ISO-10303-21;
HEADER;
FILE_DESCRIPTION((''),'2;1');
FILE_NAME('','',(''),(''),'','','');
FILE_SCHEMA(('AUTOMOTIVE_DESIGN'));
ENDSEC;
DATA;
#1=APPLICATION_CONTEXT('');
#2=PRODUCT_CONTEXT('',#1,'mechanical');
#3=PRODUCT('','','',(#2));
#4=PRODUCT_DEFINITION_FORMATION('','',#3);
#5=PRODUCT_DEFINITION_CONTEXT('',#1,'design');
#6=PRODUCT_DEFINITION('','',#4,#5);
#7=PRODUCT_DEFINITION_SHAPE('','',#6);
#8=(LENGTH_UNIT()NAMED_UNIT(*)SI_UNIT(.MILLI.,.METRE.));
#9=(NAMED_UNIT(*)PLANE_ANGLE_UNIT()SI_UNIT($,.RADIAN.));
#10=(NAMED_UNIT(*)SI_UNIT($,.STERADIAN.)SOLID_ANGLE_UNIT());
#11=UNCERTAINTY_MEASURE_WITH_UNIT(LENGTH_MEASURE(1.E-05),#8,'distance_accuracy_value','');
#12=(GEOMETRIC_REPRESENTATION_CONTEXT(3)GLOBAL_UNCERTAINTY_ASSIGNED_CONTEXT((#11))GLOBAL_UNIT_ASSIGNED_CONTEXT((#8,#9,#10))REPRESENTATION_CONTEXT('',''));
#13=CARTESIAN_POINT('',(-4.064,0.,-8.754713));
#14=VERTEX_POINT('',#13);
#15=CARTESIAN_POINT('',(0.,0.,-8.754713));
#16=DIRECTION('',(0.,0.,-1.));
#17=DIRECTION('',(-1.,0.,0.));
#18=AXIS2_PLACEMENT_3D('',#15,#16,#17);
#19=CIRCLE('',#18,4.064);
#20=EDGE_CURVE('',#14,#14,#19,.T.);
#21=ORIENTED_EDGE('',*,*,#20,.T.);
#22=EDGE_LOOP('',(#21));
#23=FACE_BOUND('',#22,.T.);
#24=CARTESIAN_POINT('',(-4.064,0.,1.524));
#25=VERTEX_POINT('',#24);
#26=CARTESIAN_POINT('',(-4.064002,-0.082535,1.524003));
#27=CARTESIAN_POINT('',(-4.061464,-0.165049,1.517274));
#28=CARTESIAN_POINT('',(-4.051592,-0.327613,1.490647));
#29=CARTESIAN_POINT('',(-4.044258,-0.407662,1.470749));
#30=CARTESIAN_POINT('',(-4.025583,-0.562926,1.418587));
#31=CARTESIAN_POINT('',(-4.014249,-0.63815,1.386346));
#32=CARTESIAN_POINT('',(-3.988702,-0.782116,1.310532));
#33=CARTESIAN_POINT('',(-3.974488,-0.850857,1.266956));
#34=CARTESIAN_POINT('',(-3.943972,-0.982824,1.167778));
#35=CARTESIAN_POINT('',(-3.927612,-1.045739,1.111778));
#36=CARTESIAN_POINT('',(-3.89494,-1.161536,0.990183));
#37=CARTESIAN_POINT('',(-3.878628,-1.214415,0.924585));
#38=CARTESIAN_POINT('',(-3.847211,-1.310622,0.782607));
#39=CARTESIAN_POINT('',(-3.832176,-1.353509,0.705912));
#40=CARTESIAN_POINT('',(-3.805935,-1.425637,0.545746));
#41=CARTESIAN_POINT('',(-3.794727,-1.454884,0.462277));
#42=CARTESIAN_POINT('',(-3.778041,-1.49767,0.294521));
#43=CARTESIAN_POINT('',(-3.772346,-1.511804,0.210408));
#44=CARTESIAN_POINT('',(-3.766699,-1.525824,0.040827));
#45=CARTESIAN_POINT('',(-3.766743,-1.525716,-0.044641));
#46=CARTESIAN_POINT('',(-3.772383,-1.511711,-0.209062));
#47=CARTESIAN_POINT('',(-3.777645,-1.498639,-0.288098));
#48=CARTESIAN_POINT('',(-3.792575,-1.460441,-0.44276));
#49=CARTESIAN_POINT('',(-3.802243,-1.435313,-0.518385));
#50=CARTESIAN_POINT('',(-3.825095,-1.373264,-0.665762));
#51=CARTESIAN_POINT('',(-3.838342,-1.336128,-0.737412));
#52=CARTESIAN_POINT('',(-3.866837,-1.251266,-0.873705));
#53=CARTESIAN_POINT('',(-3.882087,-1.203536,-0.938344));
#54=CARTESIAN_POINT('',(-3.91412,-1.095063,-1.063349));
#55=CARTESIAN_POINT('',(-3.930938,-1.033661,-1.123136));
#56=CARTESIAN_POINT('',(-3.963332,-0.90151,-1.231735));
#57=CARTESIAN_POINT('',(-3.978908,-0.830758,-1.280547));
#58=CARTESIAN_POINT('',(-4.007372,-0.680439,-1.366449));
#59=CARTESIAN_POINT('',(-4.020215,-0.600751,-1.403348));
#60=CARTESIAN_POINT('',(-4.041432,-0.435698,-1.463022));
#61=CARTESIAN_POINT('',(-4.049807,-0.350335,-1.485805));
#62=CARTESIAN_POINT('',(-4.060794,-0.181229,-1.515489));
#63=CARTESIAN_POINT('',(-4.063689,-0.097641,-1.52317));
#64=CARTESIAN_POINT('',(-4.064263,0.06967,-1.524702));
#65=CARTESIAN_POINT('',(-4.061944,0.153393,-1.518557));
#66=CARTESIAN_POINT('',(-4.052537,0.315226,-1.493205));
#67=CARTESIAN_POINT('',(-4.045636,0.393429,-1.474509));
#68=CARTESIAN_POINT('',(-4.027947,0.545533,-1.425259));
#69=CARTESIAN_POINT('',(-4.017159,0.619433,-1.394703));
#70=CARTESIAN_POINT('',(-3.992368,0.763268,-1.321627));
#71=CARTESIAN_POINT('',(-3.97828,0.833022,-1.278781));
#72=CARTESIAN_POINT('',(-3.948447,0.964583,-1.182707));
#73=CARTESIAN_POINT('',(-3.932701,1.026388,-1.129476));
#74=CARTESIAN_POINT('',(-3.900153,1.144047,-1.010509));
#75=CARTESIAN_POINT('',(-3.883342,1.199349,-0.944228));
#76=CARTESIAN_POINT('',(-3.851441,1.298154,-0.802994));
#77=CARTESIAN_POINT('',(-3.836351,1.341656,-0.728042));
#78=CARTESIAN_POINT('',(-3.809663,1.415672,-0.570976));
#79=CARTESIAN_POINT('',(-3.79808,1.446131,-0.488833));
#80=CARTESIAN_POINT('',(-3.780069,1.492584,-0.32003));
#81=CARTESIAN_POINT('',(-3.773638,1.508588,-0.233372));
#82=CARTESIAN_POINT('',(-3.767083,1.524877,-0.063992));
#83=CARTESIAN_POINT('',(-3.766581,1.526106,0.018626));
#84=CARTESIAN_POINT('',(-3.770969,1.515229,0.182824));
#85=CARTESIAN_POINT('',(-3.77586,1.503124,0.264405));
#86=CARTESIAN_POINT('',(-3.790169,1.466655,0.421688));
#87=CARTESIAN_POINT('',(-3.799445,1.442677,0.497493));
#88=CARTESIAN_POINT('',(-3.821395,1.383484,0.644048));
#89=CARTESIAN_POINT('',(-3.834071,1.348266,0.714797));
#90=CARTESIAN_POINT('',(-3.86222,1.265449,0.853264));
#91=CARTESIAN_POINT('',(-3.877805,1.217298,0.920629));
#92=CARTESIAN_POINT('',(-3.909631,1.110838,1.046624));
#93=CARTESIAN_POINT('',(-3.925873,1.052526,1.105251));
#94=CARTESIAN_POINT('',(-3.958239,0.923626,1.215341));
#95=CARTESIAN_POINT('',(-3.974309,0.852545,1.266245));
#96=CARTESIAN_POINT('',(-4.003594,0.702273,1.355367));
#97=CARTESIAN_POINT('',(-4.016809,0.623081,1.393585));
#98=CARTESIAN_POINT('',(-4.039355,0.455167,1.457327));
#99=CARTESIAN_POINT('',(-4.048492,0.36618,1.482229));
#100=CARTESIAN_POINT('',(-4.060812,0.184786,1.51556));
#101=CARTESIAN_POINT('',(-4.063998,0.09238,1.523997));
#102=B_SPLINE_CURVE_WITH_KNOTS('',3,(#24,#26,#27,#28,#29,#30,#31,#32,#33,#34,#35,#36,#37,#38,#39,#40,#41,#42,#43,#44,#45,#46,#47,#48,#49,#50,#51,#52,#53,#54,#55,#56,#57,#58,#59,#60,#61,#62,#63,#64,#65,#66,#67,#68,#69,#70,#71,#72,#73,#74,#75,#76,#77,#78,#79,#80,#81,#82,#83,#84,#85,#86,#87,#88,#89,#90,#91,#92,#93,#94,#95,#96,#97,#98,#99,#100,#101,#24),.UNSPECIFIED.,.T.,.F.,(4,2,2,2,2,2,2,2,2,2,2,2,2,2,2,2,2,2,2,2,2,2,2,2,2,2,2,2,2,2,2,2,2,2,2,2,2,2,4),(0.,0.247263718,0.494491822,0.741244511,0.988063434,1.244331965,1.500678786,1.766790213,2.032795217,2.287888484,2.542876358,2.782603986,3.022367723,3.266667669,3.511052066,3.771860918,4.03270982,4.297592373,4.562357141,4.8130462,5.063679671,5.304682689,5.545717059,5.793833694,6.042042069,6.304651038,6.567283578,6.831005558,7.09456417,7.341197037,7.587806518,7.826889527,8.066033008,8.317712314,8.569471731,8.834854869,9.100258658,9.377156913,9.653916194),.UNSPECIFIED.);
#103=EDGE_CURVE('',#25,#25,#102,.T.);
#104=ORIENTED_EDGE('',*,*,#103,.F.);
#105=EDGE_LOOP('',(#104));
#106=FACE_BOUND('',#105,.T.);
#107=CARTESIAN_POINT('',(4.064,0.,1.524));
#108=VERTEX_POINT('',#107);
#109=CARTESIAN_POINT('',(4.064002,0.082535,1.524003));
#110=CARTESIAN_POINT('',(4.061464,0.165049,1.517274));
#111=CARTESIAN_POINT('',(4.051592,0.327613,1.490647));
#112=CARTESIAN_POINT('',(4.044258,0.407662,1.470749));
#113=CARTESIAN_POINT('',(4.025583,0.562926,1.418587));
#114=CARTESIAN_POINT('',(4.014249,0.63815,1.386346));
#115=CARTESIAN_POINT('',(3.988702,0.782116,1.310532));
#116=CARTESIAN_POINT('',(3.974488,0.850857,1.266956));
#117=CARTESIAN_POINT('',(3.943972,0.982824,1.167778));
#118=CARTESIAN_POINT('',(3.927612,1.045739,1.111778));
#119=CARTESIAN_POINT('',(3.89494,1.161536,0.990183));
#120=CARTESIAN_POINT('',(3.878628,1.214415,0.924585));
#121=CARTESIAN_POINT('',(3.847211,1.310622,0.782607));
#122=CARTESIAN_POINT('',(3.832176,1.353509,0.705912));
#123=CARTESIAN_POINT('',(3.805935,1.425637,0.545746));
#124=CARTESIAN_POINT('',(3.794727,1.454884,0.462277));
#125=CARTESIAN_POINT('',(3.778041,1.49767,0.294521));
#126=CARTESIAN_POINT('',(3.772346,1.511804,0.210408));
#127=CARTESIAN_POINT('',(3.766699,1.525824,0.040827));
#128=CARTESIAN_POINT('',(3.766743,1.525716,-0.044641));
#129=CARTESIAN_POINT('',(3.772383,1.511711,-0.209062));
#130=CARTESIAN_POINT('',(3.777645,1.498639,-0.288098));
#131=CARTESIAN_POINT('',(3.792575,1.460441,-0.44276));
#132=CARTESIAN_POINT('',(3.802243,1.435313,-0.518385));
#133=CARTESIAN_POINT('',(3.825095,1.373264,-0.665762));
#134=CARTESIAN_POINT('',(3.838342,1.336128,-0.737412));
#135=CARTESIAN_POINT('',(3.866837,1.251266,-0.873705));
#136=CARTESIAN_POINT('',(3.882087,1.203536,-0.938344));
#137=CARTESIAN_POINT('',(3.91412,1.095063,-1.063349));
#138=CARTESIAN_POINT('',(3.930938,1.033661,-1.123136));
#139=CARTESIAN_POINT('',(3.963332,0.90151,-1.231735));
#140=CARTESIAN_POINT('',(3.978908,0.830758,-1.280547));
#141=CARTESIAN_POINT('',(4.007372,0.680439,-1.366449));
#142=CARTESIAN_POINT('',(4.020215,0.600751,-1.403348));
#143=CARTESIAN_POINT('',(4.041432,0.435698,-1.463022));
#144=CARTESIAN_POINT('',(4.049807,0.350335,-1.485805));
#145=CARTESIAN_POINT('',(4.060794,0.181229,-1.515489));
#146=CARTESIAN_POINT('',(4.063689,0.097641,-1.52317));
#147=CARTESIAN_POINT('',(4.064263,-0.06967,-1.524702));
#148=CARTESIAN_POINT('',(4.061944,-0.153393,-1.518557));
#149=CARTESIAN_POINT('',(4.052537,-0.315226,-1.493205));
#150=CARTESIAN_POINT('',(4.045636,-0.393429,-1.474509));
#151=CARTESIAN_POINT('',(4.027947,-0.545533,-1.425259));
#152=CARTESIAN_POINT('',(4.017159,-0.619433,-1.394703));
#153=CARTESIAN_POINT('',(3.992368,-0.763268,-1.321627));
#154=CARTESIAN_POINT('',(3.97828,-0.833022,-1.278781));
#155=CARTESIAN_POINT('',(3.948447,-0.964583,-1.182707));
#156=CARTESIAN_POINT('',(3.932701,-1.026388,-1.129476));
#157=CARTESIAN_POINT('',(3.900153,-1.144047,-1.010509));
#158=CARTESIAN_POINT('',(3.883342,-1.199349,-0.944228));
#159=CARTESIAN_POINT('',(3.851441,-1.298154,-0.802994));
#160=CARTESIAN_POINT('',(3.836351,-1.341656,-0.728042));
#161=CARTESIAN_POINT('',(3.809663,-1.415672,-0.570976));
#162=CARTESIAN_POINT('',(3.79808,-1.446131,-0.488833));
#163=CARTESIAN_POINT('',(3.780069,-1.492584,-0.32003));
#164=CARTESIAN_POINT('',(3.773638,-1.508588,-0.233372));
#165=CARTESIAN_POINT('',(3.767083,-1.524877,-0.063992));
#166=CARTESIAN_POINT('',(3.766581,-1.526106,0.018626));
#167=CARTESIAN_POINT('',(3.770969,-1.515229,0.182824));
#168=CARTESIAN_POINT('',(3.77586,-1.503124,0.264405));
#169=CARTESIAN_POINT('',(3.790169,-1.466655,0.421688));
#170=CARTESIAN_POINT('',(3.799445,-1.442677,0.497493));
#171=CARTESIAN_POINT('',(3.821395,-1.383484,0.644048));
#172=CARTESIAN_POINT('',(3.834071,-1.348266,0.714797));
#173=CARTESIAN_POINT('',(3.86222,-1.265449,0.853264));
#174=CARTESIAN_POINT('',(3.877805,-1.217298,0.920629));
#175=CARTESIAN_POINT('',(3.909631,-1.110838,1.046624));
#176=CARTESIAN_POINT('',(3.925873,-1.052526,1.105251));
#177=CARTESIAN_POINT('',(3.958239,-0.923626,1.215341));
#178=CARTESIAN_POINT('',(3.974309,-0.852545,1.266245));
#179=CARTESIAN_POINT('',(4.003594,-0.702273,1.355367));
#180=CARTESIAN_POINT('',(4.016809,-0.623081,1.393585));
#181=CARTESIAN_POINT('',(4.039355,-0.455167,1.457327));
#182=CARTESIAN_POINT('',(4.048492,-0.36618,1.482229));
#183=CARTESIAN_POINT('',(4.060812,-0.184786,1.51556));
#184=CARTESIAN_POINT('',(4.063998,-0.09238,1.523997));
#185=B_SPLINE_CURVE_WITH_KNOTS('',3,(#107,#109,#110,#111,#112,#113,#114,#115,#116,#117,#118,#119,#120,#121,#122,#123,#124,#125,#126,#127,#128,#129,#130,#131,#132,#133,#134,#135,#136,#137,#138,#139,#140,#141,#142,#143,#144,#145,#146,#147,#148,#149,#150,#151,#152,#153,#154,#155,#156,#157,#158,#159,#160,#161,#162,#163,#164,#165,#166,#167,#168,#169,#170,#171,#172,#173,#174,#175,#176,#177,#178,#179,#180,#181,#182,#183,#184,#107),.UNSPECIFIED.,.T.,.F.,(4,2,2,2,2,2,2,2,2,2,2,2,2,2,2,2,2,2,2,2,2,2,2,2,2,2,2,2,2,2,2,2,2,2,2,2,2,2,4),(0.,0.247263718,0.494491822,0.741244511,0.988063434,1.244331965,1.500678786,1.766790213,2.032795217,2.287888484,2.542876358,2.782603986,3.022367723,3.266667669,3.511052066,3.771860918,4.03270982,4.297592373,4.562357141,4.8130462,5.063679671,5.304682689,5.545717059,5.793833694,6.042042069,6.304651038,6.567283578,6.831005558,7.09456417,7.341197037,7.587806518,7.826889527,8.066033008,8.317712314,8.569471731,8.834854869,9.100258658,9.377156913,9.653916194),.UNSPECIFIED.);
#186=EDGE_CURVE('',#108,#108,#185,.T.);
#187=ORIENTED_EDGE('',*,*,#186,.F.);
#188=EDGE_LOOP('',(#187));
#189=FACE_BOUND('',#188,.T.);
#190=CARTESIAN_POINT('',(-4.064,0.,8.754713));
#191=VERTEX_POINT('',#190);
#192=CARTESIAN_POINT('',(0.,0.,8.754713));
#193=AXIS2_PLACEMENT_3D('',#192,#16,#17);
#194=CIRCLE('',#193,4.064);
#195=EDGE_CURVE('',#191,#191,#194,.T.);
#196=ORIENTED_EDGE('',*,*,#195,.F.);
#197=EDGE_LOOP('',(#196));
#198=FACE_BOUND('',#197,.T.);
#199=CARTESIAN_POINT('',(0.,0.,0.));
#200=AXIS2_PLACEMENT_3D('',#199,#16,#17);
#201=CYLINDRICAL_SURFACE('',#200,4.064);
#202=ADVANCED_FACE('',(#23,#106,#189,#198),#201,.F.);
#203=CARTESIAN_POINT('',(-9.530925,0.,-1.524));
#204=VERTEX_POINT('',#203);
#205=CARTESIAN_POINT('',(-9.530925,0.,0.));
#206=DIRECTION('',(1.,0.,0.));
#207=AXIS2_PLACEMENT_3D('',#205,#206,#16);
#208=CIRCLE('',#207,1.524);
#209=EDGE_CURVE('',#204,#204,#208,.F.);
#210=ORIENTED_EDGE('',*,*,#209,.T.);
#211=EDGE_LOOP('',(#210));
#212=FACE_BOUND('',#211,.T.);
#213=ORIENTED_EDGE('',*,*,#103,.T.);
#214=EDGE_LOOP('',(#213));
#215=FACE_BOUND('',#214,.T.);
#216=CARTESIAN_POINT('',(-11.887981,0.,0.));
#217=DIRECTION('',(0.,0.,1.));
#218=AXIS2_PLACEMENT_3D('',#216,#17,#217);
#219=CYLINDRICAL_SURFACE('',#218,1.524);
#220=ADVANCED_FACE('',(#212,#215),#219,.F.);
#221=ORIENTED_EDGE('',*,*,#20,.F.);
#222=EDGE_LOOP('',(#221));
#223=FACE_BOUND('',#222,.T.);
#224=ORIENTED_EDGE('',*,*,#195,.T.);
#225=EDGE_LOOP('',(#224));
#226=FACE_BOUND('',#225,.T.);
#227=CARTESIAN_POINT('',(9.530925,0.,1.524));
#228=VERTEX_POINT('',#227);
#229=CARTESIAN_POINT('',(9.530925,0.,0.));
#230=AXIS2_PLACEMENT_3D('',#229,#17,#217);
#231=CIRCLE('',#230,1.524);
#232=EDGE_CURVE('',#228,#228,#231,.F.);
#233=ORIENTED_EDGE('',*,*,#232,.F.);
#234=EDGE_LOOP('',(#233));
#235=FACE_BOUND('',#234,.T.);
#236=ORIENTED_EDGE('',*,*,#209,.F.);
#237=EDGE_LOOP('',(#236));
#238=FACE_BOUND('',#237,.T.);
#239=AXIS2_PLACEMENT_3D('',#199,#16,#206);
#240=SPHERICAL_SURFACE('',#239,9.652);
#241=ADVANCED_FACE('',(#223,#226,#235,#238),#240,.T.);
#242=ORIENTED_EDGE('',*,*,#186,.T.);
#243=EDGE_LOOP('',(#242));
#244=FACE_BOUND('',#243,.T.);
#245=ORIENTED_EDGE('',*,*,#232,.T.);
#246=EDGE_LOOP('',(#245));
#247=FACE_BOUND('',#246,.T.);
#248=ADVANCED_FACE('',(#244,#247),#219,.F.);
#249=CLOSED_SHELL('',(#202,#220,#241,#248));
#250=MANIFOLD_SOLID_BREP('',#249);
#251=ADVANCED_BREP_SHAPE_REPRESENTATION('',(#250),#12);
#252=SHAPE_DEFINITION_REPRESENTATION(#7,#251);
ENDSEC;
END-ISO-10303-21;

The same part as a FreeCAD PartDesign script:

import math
import FreeCAD as App
import Part
import Sketcher
Q = App.Units.Quantity

doc = App.newDocument("Part")
body = doc.addObject("PartDesign::Body", "Body")

# Sketch on XZ plane
sketch1 = doc.addObject("Sketcher::SketchObject", "Sketch")
body.addObject(sketch1)
sketch1.AttachmentSupport = (doc.XZ_Plane, [""])
sketch1.MapMode = "FlatFace"
sketch1.addGeometry([
    Part.LineSegment(App.Vector(4.064, -8.754713, 0), App.Vector(4.064, 8.754713, 0)),
    Part.ArcOfCircle(Part.Circle(App.Vector(0, 0, 0), App.Vector(0, 0, 1), 9.652), math.radians(-65.098938), math.radians(65.098938)),
], False)
sketch1.addConstraint([
    Sketcher.Constraint("Coincident", 0, 1, 1, 1),
    Sketcher.Constraint("Coincident", 1, 2, 0, 2),
    Sketcher.Constraint("Vertical", 0),
    Sketcher.Constraint("Coincident", 1, 3, -1, 1),
    Sketcher.Constraint("Radius", 1, Q("0.38 in")),
    Sketcher.Constraint("DistanceX", -1, 1, 0, 1, Q("0.16 in")),
])
revolution = doc.addObject("PartDesign::Revolution", "Revolution")
body.addObject(revolution)
revolution.Profile = sketch1
revolution.ReferenceAxis = (sketch1, ["V_Axis"])
revolution.Angle = 360

# Sketch on XZ plane
sketch2 = doc.addObject("Sketcher::SketchObject", "Sketch001")
body.addObject(sketch2)
sketch2.AttachmentSupport = (doc.XZ_Plane, [""])
sketch2.MapMode = "FlatFace"
sketch2.addGeometry([
    Part.LineSegment(App.Vector(-11.887981, -1.524, 0), App.Vector(-11.887981, 0, 0)),
    Part.LineSegment(App.Vector(-11.887981, 0, 0), App.Vector(13.985466, 0, 0)),
    Part.LineSegment(App.Vector(13.985466, 0, 0), App.Vector(13.985466, -1.524, 0)),
    Part.LineSegment(App.Vector(13.985466, -1.524, 0), App.Vector(-11.887981, -1.524, 0)),
], False)
sketch2.addConstraint([
    Sketcher.Constraint("Coincident", 0, 2, 1, 1),
    Sketcher.Constraint("Coincident", 1, 2, 2, 1),
    Sketcher.Constraint("Coincident", 2, 2, 3, 1),
    Sketcher.Constraint("Coincident", 3, 2, 0, 1),
    Sketcher.Constraint("Vertical", 0),
    Sketcher.Constraint("Horizontal", 1),
    Sketcher.Constraint("Vertical", 2),
    Sketcher.Constraint("Horizontal", 3),
    Sketcher.Constraint("PointOnObject", 0, 2, -1),
    Sketcher.Constraint("DistanceY", 0, 1, 0, 2, Q("0.06 in")),
    Sketcher.Constraint("DistanceX", 1, 1, 1, 2, 25.873447),
    Sketcher.Constraint("DistanceX", 0, 2, -1, 1, 11.887981),
])
groove = doc.addObject("PartDesign::Groove", "Groove")
body.addObject(groove)
groove.Profile = sketch2
groove.ReferenceAxis = (sketch2, ["H_Axis"])
groove.Angle = 360

doc.recompute()
